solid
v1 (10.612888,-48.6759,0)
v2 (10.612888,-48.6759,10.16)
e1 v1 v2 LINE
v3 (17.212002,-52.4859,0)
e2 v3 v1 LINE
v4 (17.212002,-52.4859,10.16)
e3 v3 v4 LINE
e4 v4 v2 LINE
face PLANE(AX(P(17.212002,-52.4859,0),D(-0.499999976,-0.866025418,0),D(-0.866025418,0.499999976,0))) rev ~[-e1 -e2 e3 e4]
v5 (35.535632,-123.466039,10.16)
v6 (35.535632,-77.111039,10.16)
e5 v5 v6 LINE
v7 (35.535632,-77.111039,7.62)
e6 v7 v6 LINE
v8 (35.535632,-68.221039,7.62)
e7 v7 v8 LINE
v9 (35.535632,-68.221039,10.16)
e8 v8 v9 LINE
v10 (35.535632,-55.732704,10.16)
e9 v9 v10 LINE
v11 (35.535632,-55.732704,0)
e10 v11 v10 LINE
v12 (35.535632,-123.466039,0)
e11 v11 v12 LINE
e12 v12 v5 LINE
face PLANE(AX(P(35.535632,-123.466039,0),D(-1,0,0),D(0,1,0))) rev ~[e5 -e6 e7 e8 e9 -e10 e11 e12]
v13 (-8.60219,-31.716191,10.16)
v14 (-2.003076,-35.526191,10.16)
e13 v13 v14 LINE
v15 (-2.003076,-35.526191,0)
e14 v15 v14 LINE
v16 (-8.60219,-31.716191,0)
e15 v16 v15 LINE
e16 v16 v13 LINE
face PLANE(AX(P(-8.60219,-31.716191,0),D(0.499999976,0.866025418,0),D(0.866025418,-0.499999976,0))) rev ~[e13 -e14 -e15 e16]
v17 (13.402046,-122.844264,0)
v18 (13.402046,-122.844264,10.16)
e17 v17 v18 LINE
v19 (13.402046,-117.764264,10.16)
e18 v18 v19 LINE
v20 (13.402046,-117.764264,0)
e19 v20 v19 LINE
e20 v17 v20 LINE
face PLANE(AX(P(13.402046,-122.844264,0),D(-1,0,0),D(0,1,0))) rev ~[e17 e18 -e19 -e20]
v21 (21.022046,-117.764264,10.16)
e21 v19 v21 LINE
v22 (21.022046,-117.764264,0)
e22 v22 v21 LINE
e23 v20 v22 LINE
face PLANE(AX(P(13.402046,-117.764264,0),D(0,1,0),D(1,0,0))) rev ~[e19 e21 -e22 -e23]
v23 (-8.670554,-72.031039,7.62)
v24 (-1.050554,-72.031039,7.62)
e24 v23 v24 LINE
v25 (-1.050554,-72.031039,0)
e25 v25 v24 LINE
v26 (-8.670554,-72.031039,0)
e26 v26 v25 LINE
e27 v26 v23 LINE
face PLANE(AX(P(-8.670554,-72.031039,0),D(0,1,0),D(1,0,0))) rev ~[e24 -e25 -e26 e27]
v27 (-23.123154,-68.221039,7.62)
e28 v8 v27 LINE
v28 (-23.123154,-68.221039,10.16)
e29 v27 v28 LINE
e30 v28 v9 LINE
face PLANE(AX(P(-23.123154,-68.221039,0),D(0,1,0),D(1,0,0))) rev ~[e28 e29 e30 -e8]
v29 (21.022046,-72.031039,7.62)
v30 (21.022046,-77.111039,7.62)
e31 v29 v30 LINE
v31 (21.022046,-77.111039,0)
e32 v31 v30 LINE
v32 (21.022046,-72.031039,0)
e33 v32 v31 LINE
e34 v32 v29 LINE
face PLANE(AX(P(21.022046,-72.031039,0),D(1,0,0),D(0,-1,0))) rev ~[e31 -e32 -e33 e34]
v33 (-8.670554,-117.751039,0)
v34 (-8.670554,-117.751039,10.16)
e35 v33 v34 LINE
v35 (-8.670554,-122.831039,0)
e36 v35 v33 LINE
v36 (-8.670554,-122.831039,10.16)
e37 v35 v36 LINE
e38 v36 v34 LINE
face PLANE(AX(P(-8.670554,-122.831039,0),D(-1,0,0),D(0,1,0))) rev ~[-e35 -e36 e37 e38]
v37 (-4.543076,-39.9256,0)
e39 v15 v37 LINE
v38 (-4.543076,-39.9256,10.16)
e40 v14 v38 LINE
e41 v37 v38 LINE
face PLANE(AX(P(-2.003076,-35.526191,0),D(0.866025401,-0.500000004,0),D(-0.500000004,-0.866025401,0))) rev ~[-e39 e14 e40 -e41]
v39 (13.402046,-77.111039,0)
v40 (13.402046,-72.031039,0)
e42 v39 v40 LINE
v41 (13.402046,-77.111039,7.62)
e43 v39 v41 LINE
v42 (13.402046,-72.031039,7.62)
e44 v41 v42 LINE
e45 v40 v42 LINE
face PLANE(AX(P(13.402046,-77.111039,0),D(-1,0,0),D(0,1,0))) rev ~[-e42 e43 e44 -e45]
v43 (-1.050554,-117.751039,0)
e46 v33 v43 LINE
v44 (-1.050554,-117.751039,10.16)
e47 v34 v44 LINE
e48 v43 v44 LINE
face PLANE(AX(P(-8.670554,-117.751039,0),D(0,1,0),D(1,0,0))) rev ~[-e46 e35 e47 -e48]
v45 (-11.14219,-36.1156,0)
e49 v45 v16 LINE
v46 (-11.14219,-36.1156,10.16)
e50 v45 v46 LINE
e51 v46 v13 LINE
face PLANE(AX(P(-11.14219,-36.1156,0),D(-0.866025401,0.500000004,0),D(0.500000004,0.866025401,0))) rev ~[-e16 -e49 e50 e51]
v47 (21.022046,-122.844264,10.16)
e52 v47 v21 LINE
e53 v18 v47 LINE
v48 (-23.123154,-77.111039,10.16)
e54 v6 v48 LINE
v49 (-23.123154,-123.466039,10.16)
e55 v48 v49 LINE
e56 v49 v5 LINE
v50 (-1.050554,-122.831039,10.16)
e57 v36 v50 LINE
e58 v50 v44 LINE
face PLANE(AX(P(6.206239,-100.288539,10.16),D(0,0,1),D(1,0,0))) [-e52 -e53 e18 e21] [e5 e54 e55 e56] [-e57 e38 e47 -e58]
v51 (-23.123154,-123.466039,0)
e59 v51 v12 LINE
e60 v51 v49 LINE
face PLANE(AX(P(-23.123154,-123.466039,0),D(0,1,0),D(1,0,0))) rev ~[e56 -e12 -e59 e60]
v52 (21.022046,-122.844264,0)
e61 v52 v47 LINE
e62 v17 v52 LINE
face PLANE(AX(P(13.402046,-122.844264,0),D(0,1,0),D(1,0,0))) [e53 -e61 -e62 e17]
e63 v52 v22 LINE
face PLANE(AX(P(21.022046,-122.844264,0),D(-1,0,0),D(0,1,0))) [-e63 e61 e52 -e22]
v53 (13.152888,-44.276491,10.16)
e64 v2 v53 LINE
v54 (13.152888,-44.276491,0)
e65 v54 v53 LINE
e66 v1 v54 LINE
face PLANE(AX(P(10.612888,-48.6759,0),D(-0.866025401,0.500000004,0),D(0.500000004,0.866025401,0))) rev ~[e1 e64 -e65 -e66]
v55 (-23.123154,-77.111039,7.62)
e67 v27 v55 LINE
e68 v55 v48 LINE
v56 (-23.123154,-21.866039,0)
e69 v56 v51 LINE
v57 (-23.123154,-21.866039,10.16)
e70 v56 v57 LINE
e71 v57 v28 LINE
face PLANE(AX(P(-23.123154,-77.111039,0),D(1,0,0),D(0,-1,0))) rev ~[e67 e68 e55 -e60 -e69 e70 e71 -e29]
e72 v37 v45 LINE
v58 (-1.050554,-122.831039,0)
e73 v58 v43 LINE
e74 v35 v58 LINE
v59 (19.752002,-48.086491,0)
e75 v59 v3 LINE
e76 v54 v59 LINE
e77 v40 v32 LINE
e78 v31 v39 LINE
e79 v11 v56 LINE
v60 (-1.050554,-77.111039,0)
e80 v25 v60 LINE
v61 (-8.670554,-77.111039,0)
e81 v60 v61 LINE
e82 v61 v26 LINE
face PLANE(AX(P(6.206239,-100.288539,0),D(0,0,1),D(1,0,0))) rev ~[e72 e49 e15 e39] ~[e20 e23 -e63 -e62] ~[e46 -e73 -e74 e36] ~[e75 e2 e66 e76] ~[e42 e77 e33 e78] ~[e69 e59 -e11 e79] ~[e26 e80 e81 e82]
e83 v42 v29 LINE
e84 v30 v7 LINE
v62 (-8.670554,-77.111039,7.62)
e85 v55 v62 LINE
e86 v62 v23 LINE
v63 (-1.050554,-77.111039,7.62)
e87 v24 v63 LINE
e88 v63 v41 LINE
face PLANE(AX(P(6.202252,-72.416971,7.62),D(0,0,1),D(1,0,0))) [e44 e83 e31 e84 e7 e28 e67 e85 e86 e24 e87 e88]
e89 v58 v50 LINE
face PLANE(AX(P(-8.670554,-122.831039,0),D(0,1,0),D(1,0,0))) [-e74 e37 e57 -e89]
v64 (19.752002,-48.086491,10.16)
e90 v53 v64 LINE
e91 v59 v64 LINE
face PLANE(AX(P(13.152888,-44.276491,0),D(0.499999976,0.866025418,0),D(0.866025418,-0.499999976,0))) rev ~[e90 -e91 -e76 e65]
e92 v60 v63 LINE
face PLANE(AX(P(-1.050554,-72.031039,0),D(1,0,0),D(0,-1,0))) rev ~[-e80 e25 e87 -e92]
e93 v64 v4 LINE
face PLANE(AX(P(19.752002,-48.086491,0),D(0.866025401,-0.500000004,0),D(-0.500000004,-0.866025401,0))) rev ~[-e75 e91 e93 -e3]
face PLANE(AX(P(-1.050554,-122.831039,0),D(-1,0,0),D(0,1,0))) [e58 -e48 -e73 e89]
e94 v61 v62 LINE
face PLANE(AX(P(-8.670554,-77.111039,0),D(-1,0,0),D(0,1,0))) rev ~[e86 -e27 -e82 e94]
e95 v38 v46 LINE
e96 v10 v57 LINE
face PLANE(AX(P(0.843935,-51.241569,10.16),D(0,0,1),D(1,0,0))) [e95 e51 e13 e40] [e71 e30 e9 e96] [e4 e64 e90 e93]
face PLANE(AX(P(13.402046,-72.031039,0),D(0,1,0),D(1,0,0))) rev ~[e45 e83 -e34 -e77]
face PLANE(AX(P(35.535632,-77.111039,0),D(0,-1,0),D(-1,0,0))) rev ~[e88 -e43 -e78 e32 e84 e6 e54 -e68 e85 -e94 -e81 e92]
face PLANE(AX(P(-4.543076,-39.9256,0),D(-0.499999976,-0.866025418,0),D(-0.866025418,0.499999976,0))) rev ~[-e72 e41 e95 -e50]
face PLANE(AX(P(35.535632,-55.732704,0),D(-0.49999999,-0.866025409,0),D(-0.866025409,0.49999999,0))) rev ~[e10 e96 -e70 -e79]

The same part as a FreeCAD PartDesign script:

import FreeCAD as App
import Part
import Sketcher

V = App.Vector
Q = App.Units.Quantity

doc = App.newDocument("Part")
body = doc.addObject("PartDesign::Body", "Body")

# Sketch on XY plane
sketch1 = body.newObject("Sketcher::SketchObject", "Sketch")
sketch1.AttachmentSupport = (doc.getObject("XY_Plane"), [""])
sketch1.MapMode = "FlatFace"
sketch1.addGeometry([
    Part.LineSegment(V(36, -56, 0), V(-23, -22, 0)),  # 0
    Part.LineSegment(V(-23, -22, 0), V(-23, -68, 0)),  # 1
    Part.LineSegment(V(-23, -68, 0), V(36, -68, 0)),  # 2
    Part.LineSegment(V(36, -68, 0), V(36, -56, 0)),  # 3
    Part.LineSegment(V(20, -48, 0), V(17, -52, 0)),  # 4
    Part.LineSegment(V(17, -52, 0), V(11, -49, 0)),  # 5
    Part.LineSegment(V(11, -49, 0), V(13, -44, 0)),  # 6
    Part.LineSegment(V(13, -44, 0), V(20, -48, 0)),  # 7
    Part.LineSegment(V(-5, -40, 0), V(-11, -36, 0)),  # 8
    Part.LineSegment(V(-11, -36, 0), V(-9, -32, 0)),  # 9
    Part.LineSegment(V(-9, -32, 0), V(-2, -36, 0)),  # 10
    Part.LineSegment(V(-2, -36, 0), V(-5, -40, 0)),  # 11
], False)
sketch1.addConstraint([
    Sketcher.Constraint("Coincident", 0, 2, 1, 1),
    Sketcher.Constraint("Coincident", 1, 2, 2, 1),
    Sketcher.Constraint("Coincident", 2, 2, 3, 1),
    Sketcher.Constraint("Coincident", 3, 2, 0, 1),
    Sketcher.Constraint("Coincident", 4, 2, 5, 1),
    Sketcher.Constraint("Coincident", 5, 2, 6, 1),
    Sketcher.Constraint("Coincident", 6, 2, 7, 1),
    Sketcher.Constraint("Coincident", 7, 2, 4, 1),
    Sketcher.Constraint("Coincident", 8, 2, 9, 1),
    Sketcher.Constraint("Coincident", 9, 2, 10, 1),
    Sketcher.Constraint("Coincident", 10, 2, 11, 1),
    Sketcher.Constraint("Coincident", 11, 2, 8, 1),
    Sketcher.Constraint("Vertical", 1),
    Sketcher.Constraint("Horizontal", 2),
    Sketcher.Constraint("Vertical", 3),
    Sketcher.Constraint("Perpendicular", 0, 4),
    Sketcher.Constraint("Perpendicular", 4, 5),
    Sketcher.Constraint("Perpendicular", 5, 6),
    Sketcher.Constraint("Perpendicular", 6, 7),
    Sketcher.Constraint("Parallel", 7, 8),
    Sketcher.Constraint("Perpendicular", 8, 9),
    Sketcher.Constraint("Perpendicular", 9, 10),
    Sketcher.Constraint("Perpendicular", 10, 11),
    Sketcher.Constraint("Equal", 7, 8),
    Sketcher.Constraint("Equal", 6, 9),
    Sketcher.Constraint("Angle", 0, Q("150.000001 deg")),
    Sketcher.Constraint("Distance", 4, Q("0.2 in")),
    Sketcher.Constraint("Distance", 5, Q("0.3 in")),
    Sketcher.Constraint("DistanceY", 1, 2, 1, 1, Q("1.825 in")),
    Sketcher.Constraint("DistanceY", 5, 2, 8, 2, Q("0.4945 in")),
    Sketcher.Constraint("DistanceX", -1, 1, 4, 2, Q("17.212002 mm")),
    Sketcher.Constraint("DistanceY", 4, 2, -1, 1, Q("52.4859 mm")),
    Sketcher.Constraint("Distance", 0, Q("67.733331 mm")),
    Sketcher.Constraint("DistanceY", 0, 2, -1, 1, Q("21.866039 mm")),
    Sketcher.Constraint("DistanceX", 8, 2, -1, 1, Q("11.14219 mm")),
    Sketcher.Constraint("DistanceX", 4, 2, 3, 2, Q("18.32363 mm")),
])
pad1 = body.newObject("PartDesign::Pad", "Pad")
pad1.Profile = sketch1
pad1.Length = Q("0.4 in")

# Sketch on XY plane
sketch2 = body.newObject("Sketcher::SketchObject", "Sketch001")
sketch2.AttachmentSupport = (doc.getObject("XY_Plane"), [""])
sketch2.MapMode = "FlatFace"
sketch2.addGeometry([
    Part.LineSegment(V(36, -68, 0), V(-23, -68, 0)),  # 0
    Part.LineSegment(V(-23, -68, 0), V(-23, -77, 0)),  # 1
    Part.LineSegment(V(-23, -77, 0), V(-9, -77, 0)),  # 2
    Part.LineSegment(V(-9, -77, 0), V(-9, -72, 0)),  # 3
    Part.LineSegment(V(-9, -72, 0), V(-1, -72, 0)),  # 4
    Part.LineSegment(V(-1, -72, 0), V(-1, -77, 0)),  # 5
    Part.LineSegment(V(-1, -77, 0), V(13, -77, 0)),  # 6
    Part.LineSegment(V(13, -77, 0), V(13, -72, 0)),  # 7
    Part.LineSegment(V(13, -72, 0), V(21, -72, 0)),  # 8
    Part.LineSegment(V(21, -72, 0), V(21, -77, 0)),  # 9
    Part.LineSegment(V(21, -77, 0), V(36, -77, 0)),  # 10
    Part.LineSegment(V(36, -77, 0), V(36, -68, 0)),  # 11
], False)
sketch2.addConstraint([
    Sketcher.Constraint("Coincident", 0, 2, 1, 1),
    Sketcher.Constraint("Coincident", 1, 2, 2, 1),
    Sketcher.Constraint("Coincident", 2, 2, 3, 1),
    Sketcher.Constraint("Coincident", 3, 2, 4, 1),
    Sketcher.Constraint("Coincident", 4, 2, 5, 1),
    Sketcher.Constraint("Coincident", 5, 2, 6, 1),
    Sketcher.Constraint("Coincident", 6, 2, 7, 1),
    Sketcher.Constraint("Coincident", 7, 2, 8, 1),
    Sketcher.Constraint("Coincident", 8, 2, 9, 1),
    Sketcher.Constraint("Coincident", 9, 2, 10, 1),
    Sketcher.Constraint("Coincident", 10, 2, 11, 1),
    Sketcher.Constraint("Coincident", 11, 2, 0, 1),
    Sketcher.Constraint("Horizontal", 0),
    Sketcher.Constraint("Vertical", 1),
    Sketcher.Constraint("Horizontal", 2),
    Sketcher.Constraint("Vertical", 3),
    Sketcher.Constraint("Horizontal", 4),
    Sketcher.Constraint("Vertical", 5),
    Sketcher.Constraint("Horizontal", 6),
    Sketcher.Constraint("Vertical", 7),
    Sketcher.Constraint("Horizontal", 8),
    Sketcher.Constraint("Vertical", 9),
    Sketcher.Constraint("Horizontal", 10),
    Sketcher.Constraint("Vertical", 11),
    Sketcher.Constraint("Horizontal", 2, 2, 5, 2),
    Sketcher.Constraint("Horizontal", 4, 2, 7, 2),
    Sketcher.Constraint("Horizontal", 6, 2, 9, 2),
    Sketcher.Constraint("Equal", 2, 6),
    Sketcher.Constraint("Equal", 4, 8),
    Sketcher.Constraint("DistanceX", 4, 1, 4, 2, Q("0.3 in")),
    Sketcher.Constraint("DistanceY", 3, 1, 3, 2, Q("0.2 in")),
    Sketcher.Constraint("DistanceY", 1, 2, 1, 1, Q("0.35 in")),
    Sketcher.Constraint("DistanceX", 2, 1, 2, 2, Q("0.569 in")),
    Sketcher.Constraint("DistanceX", 0, 2, 0, 1, Q("58.658786 mm")),
    Sketcher.Constraint("DistanceY", 0, 2, -1, 1, Q("68.221039 mm")),
    Sketcher.Constraint("DistanceX", 0, 2, -1, 1, Q("23.123154 mm")),
])
pad2 = body.newObject("PartDesign::Pad", "Pad001")
pad2.Profile = sketch2
pad2.Length = Q("0.3 in")

# Sketch on XY plane
sketch3 = body.newObject("Sketcher::SketchObject", "Sketch002")
sketch3.AttachmentSupport = (doc.getObject("XY_Plane"), [""])
sketch3.MapMode = "FlatFace"
sketch3.addGeometry([
    Part.LineSegment(V(-23, -77, 0), V(-23, -123, 0)),  # 0
    Part.LineSegment(V(-23, -123, 0), V(36, -123, 0)),  # 1
    Part.LineSegment(V(36, -123, 0), V(36, -77, 0)),  # 2
    Part.LineSegment(V(36, -77, 0), V(-23, -77, 0)),  # 3
    Part.LineSegment(V(21, -123, 0), V(13, -123, 0)),  # 4
    Part.LineSegment(V(13, -123, 0), V(13, -118, 0)),  # 5
    Part.LineSegment(V(13, -118, 0), V(21, -118, 0)),  # 6
    Part.LineSegment(V(21, -118, 0), V(21, -123, 0)),  # 7
    Part.LineSegment(V(-1, -123, 0), V(-9, -123, 0)),  # 8
    Part.LineSegment(V(-9, -123, 0), V(-9, -118, 0)),  # 9
    Part.LineSegment(V(-9, -118, 0), V(-1, -118, 0)),  # 10
    Part.LineSegment(V(-1, -118, 0), V(-1, -123, 0)),  # 11
], False)
sketch3.addConstraint([
    Sketcher.Constraint("Coincident", 0, 2, 1, 1),
    Sketcher.Constraint("Coincident", 1, 2, 2, 1),
    Sketcher.Constraint("Coincident", 2, 2, 3, 1),
    Sketcher.Constraint("Coincident", 3, 2, 0, 1),
    Sketcher.Constraint("Coincident", 4, 2, 5, 1),
    Sketcher.Constraint("Coincident", 5, 2, 6, 1),
    Sketcher.Constraint("Coincident", 6, 2, 7, 1),
    Sketcher.Constraint("Coincident", 7, 2, 4, 1),
    Sketcher.Constraint("Coincident", 8, 2, 9, 1),
    Sketcher.Constraint("Coincident", 9, 2, 10, 1),
    Sketcher.Constraint("Coincident", 10, 2, 11, 1),
    Sketcher.Constraint("Coincident", 11, 2, 8, 1),
    Sketcher.Constraint("Vertical", 0),
    Sketcher.Constraint("Horizontal", 1),
    Sketcher.Constraint("Vertical", 2),
    Sketcher.Constraint("Horizontal", 3),
    Sketcher.Constraint("Horizontal", 4),
    Sketcher.Constraint("Vertical", 5),
    Sketcher.Constraint("Horizontal", 6),
    Sketcher.Constraint("Vertical", 7),
    Sketcher.Constraint("Horizontal", 8),
    Sketcher.Constraint("Vertical", 9),
    Sketcher.Constraint("Horizontal", 10),
    Sketcher.Constraint("Vertical", 11),
    Sketcher.Constraint("Equal", 6, 8),
    Sketcher.Constraint("Equal", 7, 9),
    Sketcher.Constraint("DistanceX", 4, 2, 4, 1, Q("0.3 in")),
    Sketcher.Constraint("DistanceY", 5, 1, 5, 2, Q("0.2 in")),
    Sketcher.Constraint("DistanceY", 0, 2, 0, 1, Q("1.825 in")),
    Sketcher.Constraint("DistanceX", 0, 2, 4, 2, Q("1.438 in")),
    Sketcher.Constraint("DistanceX", 0, 2, 8, 2, Q("0.569 in")),
    Sketcher.Constraint("DistanceY", 0, 2, 8, 2, Q("0.025 in")),
    Sketcher.Constraint("DistanceX", 1, 1, 1, 2, Q("58.658786 mm")),
    Sketcher.Constraint("DistanceY", 0, 2, -1, 1, Q("123.466039 mm")),
    Sketcher.Constraint("DistanceX", 0, 2, -1, 1, Q("23.123154 mm")),
    Sketcher.Constraint("DistanceY", 4, 2, -1, 1, Q("122.844264 mm")),
])
pad3 = body.newObject("PartDesign::Pad", "Pad002")
pad3.Profile = sketch3
pad3.Length = Q("0.4 in")

doc.recompute()
